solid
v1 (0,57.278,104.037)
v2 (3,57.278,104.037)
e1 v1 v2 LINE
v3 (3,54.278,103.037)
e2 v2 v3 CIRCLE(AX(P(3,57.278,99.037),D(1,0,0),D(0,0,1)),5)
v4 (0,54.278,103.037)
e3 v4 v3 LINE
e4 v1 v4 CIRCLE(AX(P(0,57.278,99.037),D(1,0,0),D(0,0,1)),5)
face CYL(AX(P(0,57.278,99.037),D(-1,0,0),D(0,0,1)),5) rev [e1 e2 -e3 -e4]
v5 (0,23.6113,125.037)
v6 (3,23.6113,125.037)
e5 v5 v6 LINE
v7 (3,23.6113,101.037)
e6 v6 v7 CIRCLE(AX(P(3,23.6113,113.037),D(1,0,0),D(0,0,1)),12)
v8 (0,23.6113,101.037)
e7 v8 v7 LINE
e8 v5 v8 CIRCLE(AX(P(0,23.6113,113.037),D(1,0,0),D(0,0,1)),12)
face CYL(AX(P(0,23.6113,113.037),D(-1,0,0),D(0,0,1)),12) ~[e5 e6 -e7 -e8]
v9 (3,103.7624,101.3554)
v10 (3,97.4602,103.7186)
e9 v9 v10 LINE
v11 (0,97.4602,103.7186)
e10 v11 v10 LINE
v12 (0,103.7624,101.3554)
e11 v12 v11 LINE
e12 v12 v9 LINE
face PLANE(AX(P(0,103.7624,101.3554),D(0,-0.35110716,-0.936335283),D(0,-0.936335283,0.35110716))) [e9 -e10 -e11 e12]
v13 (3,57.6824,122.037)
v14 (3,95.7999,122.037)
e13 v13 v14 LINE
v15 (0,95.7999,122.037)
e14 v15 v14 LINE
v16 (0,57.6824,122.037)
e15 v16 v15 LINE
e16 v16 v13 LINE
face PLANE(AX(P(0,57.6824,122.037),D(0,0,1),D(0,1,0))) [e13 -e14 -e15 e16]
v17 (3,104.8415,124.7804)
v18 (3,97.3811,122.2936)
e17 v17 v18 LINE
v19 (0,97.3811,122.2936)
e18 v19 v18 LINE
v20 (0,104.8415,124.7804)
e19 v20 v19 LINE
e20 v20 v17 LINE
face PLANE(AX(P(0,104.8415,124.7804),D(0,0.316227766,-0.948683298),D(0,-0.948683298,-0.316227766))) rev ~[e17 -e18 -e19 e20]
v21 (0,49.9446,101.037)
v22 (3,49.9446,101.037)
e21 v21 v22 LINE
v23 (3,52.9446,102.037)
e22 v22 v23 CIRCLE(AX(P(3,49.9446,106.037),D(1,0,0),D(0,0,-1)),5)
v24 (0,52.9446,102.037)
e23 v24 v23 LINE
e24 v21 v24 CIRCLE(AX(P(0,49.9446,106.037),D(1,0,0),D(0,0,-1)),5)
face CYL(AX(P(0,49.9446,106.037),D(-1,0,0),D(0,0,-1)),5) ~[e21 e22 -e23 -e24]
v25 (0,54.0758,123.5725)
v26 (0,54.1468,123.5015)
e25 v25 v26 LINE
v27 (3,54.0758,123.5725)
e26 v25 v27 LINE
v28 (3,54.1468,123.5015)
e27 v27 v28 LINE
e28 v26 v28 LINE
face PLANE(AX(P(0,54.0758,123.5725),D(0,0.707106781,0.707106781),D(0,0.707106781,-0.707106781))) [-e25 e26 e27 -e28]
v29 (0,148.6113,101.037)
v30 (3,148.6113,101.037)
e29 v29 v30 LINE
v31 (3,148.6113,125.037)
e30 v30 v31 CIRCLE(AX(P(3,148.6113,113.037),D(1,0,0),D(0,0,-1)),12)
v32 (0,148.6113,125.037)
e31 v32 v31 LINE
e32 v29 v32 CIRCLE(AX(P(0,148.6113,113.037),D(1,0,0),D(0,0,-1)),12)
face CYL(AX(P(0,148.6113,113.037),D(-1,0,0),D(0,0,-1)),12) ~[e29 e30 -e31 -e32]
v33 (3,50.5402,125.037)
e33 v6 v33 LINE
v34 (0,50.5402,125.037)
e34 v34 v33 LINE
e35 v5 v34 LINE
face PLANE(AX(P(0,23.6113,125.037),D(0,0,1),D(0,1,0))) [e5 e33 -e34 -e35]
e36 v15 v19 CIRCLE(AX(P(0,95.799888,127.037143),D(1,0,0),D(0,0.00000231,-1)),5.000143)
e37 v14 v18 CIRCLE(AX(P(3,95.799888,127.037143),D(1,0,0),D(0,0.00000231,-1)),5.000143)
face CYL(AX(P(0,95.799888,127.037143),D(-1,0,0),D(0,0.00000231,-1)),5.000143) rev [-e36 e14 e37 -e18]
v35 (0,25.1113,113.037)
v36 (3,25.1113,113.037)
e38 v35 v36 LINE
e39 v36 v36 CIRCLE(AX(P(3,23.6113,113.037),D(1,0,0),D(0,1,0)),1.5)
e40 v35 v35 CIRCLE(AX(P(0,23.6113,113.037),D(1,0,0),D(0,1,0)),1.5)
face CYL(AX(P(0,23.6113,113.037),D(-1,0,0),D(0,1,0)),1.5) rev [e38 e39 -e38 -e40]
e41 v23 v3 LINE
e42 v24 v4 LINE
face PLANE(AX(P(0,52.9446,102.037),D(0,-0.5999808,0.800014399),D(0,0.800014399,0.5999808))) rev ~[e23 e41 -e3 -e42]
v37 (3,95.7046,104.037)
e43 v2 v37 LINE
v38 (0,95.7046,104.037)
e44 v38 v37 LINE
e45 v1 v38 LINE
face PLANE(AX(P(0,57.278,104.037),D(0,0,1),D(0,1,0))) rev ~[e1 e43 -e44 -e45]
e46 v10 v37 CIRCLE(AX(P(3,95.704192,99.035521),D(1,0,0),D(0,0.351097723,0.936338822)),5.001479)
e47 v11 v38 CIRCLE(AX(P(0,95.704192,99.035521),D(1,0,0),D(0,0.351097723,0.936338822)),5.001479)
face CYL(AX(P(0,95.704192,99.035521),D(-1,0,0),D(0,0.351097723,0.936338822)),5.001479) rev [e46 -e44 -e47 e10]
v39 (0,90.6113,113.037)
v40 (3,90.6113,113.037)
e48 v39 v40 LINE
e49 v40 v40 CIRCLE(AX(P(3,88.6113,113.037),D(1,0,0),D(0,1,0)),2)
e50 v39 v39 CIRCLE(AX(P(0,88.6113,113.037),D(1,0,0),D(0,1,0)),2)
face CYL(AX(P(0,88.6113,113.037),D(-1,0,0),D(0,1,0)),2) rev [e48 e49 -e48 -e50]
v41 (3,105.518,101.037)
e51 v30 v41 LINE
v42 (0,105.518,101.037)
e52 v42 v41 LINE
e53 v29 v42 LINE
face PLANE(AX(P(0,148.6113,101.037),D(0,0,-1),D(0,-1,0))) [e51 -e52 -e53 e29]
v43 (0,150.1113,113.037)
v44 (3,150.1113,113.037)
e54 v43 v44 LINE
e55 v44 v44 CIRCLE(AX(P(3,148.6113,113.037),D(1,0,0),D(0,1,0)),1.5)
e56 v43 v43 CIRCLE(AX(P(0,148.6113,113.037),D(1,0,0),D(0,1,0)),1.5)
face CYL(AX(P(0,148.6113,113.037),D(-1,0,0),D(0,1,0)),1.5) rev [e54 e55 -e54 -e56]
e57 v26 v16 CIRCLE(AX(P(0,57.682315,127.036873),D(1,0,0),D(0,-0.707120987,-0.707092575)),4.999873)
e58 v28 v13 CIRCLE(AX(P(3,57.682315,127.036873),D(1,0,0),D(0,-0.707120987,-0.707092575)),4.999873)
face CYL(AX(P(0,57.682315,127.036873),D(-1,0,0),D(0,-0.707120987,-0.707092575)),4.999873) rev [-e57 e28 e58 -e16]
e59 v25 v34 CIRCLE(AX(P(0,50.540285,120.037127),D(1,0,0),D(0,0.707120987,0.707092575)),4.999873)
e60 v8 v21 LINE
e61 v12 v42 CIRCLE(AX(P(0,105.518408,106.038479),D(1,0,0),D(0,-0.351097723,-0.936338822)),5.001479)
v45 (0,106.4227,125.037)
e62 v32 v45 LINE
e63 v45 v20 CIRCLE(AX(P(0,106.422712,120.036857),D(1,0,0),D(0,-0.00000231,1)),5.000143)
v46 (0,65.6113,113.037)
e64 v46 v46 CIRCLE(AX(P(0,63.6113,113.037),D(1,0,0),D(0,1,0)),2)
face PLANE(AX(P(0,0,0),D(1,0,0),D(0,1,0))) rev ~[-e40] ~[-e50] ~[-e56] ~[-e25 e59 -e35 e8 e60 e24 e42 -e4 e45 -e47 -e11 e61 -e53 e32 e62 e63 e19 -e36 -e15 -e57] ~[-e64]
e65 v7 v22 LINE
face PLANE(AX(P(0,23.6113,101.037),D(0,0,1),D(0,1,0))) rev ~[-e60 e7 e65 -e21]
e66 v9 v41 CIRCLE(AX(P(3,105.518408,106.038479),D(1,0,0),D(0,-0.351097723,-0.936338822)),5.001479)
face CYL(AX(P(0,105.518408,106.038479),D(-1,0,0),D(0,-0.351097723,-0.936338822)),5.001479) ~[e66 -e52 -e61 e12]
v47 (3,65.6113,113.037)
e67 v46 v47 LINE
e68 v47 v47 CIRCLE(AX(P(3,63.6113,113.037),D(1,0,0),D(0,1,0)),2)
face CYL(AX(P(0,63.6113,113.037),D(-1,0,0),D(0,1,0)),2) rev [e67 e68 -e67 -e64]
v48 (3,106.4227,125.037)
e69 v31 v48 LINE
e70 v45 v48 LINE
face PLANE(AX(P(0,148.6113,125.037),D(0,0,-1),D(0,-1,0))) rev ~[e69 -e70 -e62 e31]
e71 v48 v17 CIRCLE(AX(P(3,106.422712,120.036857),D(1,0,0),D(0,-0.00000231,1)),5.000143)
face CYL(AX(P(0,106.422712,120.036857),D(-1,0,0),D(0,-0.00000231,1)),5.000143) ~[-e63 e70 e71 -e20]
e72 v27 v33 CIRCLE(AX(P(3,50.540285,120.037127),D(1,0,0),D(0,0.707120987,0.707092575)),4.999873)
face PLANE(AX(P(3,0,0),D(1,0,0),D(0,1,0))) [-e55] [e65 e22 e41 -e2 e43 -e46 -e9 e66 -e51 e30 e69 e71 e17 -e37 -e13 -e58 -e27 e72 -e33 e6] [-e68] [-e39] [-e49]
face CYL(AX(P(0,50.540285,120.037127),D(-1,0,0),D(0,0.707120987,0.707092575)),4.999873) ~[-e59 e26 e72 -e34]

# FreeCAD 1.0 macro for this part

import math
import FreeCAD as App
import Part
import Sketcher
Q = App.Units.Quantity

doc = App.newDocument("Part")
body = doc.addObject("PartDesign::Body", "Body")

# Sketch on YZ plane
sketch1 = body.newObject("Sketcher::SketchObject", "Sketch")
sketch1.AttachmentSupport = (doc.getObject("YZ_Plane"), [""])
sketch1.MapMode = "FlatFace"
sketch1.addGeometry(Part.LineSegment(App.Vector(105.52, 101.04, 0), App.Vector(148.61, 101.04, 0)), False)
sketch1.addGeometry(Part.ArcOfCircle(Part.Circle(App.Vector(148.61, 113.04, 0), App.Vector(0, 0, 1), 12), math.radians(-90), math.radians(90)), False)
sketch1.addGeometry(Part.LineSegment(App.Vector(148.61, 125.04, 0), App.Vector(106.42, 125.04, 0)), False)
sketch1.addGeometry(Part.ArcOfCircle(Part.Circle(App.Vector(106.42, 120.04, 0), App.Vector(0, 0, 1), 5), math.radians(90), math.radians(108.44)), False)
sketch1.addGeometry(Part.LineSegment(App.Vector(104.84, 124.78, 0), App.Vector(97.38, 122.29, 0)), False)
sketch1.addGeometry(Part.ArcOfCircle(Part.Circle(App.Vector(95.8, 127.04, 0), App.Vector(0, 0, 1), 5), math.radians(-90), math.radians(-71.56)), False)
sketch1.addGeometry(Part.LineSegment(App.Vector(95.8, 122.04, 0), App.Vector(57.68, 122.04, 0)), False)
sketch1.addGeometry(Part.ArcOfCircle(Part.Circle(App.Vector(57.68, 127.04, 0), App.Vector(0, 0, 1), 5), math.radians(-135), math.radians(-90)), False)
sketch1.addGeometry(Part.LineSegment(App.Vector(54.15, 123.5, 0), App.Vector(54.08, 123.57, 0)), False)
sketch1.addGeometry(Part.ArcOfCircle(Part.Circle(App.Vector(50.54, 120.04, 0), App.Vector(0, 0, 1), 5), math.radians(45), math.radians(90)), False)
sketch1.addGeometry(Part.LineSegment(App.Vector(50.54, 125.04, 0), App.Vector(23.61, 125.04, 0)), False)
sketch1.addGeometry(Part.ArcOfCircle(Part.Circle(App.Vector(23.61, 113.04, 0), App.Vector(0, 0, 1), 12), math.radians(90), math.radians(270)), False)
sketch1.addGeometry(Part.LineSegment(App.Vector(23.61, 101.04, 0), App.Vector(49.94, 101.04, 0)), False)
sketch1.addGeometry(Part.ArcOfCircle(Part.Circle(App.Vector(49.94, 106.04, 0), App.Vector(0, 0, 1), 5), math.radians(-90), math.radians(-53)), False)
sketch1.addGeometry(Part.LineSegment(App.Vector(52.94, 102.04, 0), App.Vector(54.28, 103.04, 0)), False)
sketch1.addGeometry(Part.ArcOfCircle(Part.Circle(App.Vector(57.28, 99.04, 0), App.Vector(0, 0, 1), 5), math.radians(90), math.radians(127)), False)
sketch1.addGeometry(Part.LineSegment(App.Vector(57.28, 104.04, 0), App.Vector(95.7, 104.04, 0)), False)
sketch1.addGeometry(Part.ArcOfCircle(Part.Circle(App.Vector(95.7, 99.04, 0), App.Vector(0, 0, 1), 5), math.radians(69), math.radians(90)), False)
sketch1.addGeometry(Part.LineSegment(App.Vector(97.46, 103.72, 0), App.Vector(103.76, 101.36, 0)), False)
sketch1.addGeometry(Part.ArcOfCircle(Part.Circle(App.Vector(105.52, 106.04, 0), App.Vector(0, 0, 1), 5), math.radians(-111), math.radians(-90)), False)
sketch1.addGeometry(Part.Circle(App.Vector(23.61, 113.04, 0), App.Vector(0, 0, 1), 1.5), False)
sketch1.addGeometry(Part.Circle(App.Vector(63.61, 113.04, 0), App.Vector(0, 0, 1), 2), False)
sketch1.addGeometry(Part.Circle(App.Vector(88.61, 113.04, 0), App.Vector(0, 0, 1), 2), False)
sketch1.addGeometry(Part.Circle(App.Vector(148.61, 113.04, 0), App.Vector(0, 0, 1), 1.5), False)
sketch1.addConstraint(Sketcher.Constraint("Tangent", 0, 2, 1, 1))
sketch1.addConstraint(Sketcher.Constraint("Tangent", 1, 2, 2, 1))
sketch1.addConstraint(Sketcher.Constraint("Tangent", 2, 2, 3, 1))
sketch1.addConstraint(Sketcher.Constraint("Tangent", 3, 2, 4, 1))
sketch1.addConstraint(Sketcher.Constraint("Tangent", 4, 2, 5, 2))
sketch1.addConstraint(Sketcher.Constraint("Tangent", 5, 1, 6, 1))
sketch1.addConstraint(Sketcher.Constraint("Tangent", 6, 2, 7, 2))
sketch1.addConstraint(Sketcher.Constraint("Tangent", 7, 1, 8, 1))
sketch1.addConstraint(Sketcher.Constraint("Tangent", 8, 2, 9, 1))
sketch1.addConstraint(Sketcher.Constraint("Tangent", 9, 2, 10, 1))
sketch1.addConstraint(Sketcher.Constraint("Tangent", 10, 2, 11, 1))
sketch1.addConstraint(Sketcher.Constraint("Tangent", 11, 2, 12, 1))
sketch1.addConstraint(Sketcher.Constraint("Tangent", 12, 2, 13, 1))
sketch1.addConstraint(Sketcher.Constraint("Tangent", 13, 2, 14, 1))
sketch1.addConstraint(Sketcher.Constraint("Tangent", 14, 2, 15, 2))
sketch1.addConstraint(Sketcher.Constraint("Tangent", 15, 1, 16, 1))
sketch1.addConstraint(Sketcher.Constraint("Tangent", 16, 2, 17, 2))
sketch1.addConstraint(Sketcher.Constraint("Tangent", 17, 1, 18, 1))
sketch1.addConstraint(Sketcher.Constraint("Tangent", 18, 2, 19, 1))
sketch1.addConstraint(Sketcher.Constraint("Tangent", 19, 2, 0, 1))
sketch1.addConstraint(Sketcher.Constraint("Horizontal", 0))
sketch1.addConstraint(Sketcher.Constraint("Horizontal", 2))
sketch1.addConstraint(Sketcher.Constraint("Horizontal", 6))
sketch1.addConstraint(Sketcher.Constraint("Horizontal", 10))
sketch1.addConstraint(Sketcher.Constraint("Horizontal", 12))
sketch1.addConstraint(Sketcher.Constraint("Horizontal", 16))
sketch1.addConstraint(Sketcher.Constraint("Coincident", 20, 3, 11, 3))
sketch1.addConstraint(Sketcher.Constraint("Coincident", 23, 3, 1, 3))
sketch1.addConstraint(Sketcher.Constraint("Equal", 3, 5))
sketch1.addConstraint(Sketcher.Constraint("Equal", 5, 7))
sketch1.addConstraint(Sketcher.Constraint("Equal", 7, 9))
sketch1.addConstraint(Sketcher.Constraint("Equal", 1, 11))
sketch1.addConstraint(Sketcher.Constraint("Equal", 9, 13))
sketch1.addConstraint(Sketcher.Constraint("Equal", 13, 15))
sketch1.addConstraint(Sketcher.Constraint("Equal", 17, 19))
sketch1.addConstraint(Sketcher.Constraint("Equal", 21, 22))
sketch1.addConstraint(Sketcher.Constraint("Equal", 20, 23))
sketch1.addConstraint(Sketcher.Constraint("Horizontal", 3, 3, 9, 3))
sketch1.addConstraint(Sketcher.Constraint("Horizontal", 20, 3, 21, 3))
sketch1.addConstraint(Sketcher.Constraint("Horizontal", 21, 3, 22, 3))
sketch1.addConstraint(Sketcher.Constraint("Diameter", 20, Q("3 mm")))
sketch1.addConstraint(Sketcher.Constraint("Diameter", 21, Q("4 mm")))
sketch1.addConstraint(Sketcher.Constraint("Radius", 1, Q("12 mm")))
sketch1.addConstraint(Sketcher.Constraint("Radius", 3, Q("5 mm")))
sketch1.addConstraint(Sketcher.Constraint("DistanceX", 21, 3, 22, 3, Q("25 mm")))
sketch1.addConstraint(Sketcher.Constraint("DistanceY", 5, 1, 2, 2, Q("3 mm")))
sketch1.addConstraint(Sketcher.Constraint("DistanceX", 12, 2, 13, 2, Q("3 mm")))
sketch1.addConstraint(Sketcher.Constraint("DistanceY", 15, 3, 13, 2, Q("3 mm")))
sketch1.addConstraint(Sketcher.Constraint("Angle", 8, Q("135 deg")))
sketch1.addConstraint(Sketcher.Constraint("DistanceX", 11, 3, 1, 3, Q("125 mm")))
sketch1.addConstraint(Sketcher.Constraint("DistanceX", -1, 1, 5, 3, Q("95.8 mm")))
sketch1.addConstraint(Sketcher.Constraint("Radius", 17, Q("5.0015 mm")))
sketch1.addConstraint(Sketcher.Constraint("DistanceX", 10, 2, 10, 1, Q("26.929 mm")))
sketch1.addConstraint(Sketcher.Constraint("Distance", 4, Q("7.864 mm")))
sketch1.addConstraint(Sketcher.Constraint("DistanceX", 0, 1, 0, 2, Q("43.0933 mm")))
sketch1.addConstraint(Sketcher.Constraint("DistanceX", 2, 2, 2, 1, Q("42.1886 mm")))
sketch1.addConstraint(Sketcher.Constraint("DistanceX", 12, 1, 12, 2, Q("26.3333 mm")))
sketch1.addConstraint(Sketcher.Constraint("DistanceX", 16, 1, 16, 2, Q("38.4266 mm")))
sketch1.addConstraint(Sketcher.Constraint("DistanceY", -1, 1, 1, 3, Q("113.037 mm")))
sketch1.addConstraint(Sketcher.Constraint("DistanceX", 9, 3, 21, 3, Q("13.071 mm")))
pad1 = body.newObject("PartDesign::Pad", "Pad")
pad1.Profile = sketch1
pad1.Length = 3

doc.recompute()
